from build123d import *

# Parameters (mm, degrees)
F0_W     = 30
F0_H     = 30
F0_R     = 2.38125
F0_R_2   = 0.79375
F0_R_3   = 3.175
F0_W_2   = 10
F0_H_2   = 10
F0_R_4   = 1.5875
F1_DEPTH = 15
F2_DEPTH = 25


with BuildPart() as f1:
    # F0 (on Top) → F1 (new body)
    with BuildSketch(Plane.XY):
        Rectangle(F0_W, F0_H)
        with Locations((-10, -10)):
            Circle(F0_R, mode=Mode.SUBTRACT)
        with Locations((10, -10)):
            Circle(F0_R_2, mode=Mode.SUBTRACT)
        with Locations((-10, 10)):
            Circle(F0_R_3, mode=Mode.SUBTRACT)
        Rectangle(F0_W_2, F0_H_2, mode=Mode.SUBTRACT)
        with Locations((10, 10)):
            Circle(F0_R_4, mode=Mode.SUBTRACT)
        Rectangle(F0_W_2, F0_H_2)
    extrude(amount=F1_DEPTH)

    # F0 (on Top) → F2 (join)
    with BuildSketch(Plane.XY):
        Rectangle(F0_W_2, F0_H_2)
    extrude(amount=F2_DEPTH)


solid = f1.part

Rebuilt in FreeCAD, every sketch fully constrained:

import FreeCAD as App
import Part
import Sketcher
from FreeCAD import Vector


def add_polygon(sketch, points):
    """Adds a closed chain of lines whose ends are joined by coincident constraints."""
    first, n = sketch.GeometryCount, len(points)
    for a, b in zip(points, points[1:] + points[:1]):
        sketch.addGeometry(Part.LineSegment(App.Vector(*a, 0), App.Vector(*b, 0)), False)
    for i in range(n):
        sketch.addConstraint(Sketcher.Constraint("Coincident", first + i, 2, first + (i + 1) % n, 1))

doc = App.newDocument("Part")
body = doc.addObject("PartDesign::Body", "Body")

# Sketch on XY plane
sketch1 = body.newObject("Sketcher::SketchObject", "Sketch")
sketch1.AttachmentSupport = (doc.getObject("XY_Plane"), [""])
sketch1.MapMode = "FlatFace"
add_polygon(sketch1, [(-15, 15), (-15, -15), (15, -15), (15, 15)])  # lines 0-3
sketch1.addGeometry(Part.Circle(Vector(-10, -10, 0), Vector(0, 0, 1), 2.38125), False)  # 4
sketch1.addGeometry(Part.Circle(Vector(10, -10, 0), Vector(0, 0, 1), 0.79375), False)  # 5
sketch1.addGeometry(Part.Circle(Vector(-10, 10, 0), Vector(0, 0, 1), 3.175), False)  # 6
sketch1.addGeometry(Part.Circle(Vector(10, 10, 0), Vector(0, 0, 1), 1.5875), False)  # 7
sketch1.addConstraint([
    Sketcher.Constraint("Vertical", 0),
    Sketcher.Constraint("Horizontal", 1),
    Sketcher.Constraint("Vertical", 2),
    Sketcher.Constraint("Horizontal", 3),
    Sketcher.Constraint("Symmetric", 5, 3, 6, 3, -1, 1),
    Sketcher.Constraint("Symmetric", 4, 3, 7, 3, -1, 1),
    Sketcher.Constraint("Symmetric", 0, 2, 2, 2, -1, 1),
    Sketcher.Constraint("Symmetric", 4, 3, 5, 3, -2),
    Sketcher.Constraint("Equal", 3, 0),
    Sketcher.Constraint("Diameter", 6, 6.35),
    Sketcher.Constraint("DistanceX", 1, 1, 1, 2, 30.0),
    Sketcher.Constraint("Diameter", 7, 3.175),
    Sketcher.Constraint("DistanceX", 4, 3, -1, 1, 10.0),
    Sketcher.Constraint("DistanceY", 4, 3, -1, 1, 10.0),
    Sketcher.Constraint("Diameter", 4, 4.7625),
    Sketcher.Constraint("Diameter", 5, 1.5875),
])
pad1 = body.newObject("PartDesign::Pad", "Pad")
pad1.Profile = sketch1
pad1.Length = 15

# Sketch on XY plane
sketch2 = body.newObject("Sketcher::SketchObject", "Sketch001")
sketch2.AttachmentSupport = (doc.getObject("XY_Plane"), [""])
sketch2.MapMode = "FlatFace"
add_polygon(sketch2, [(-5, 5), (-5, -5), (5, -5), (5, 5)])  # lines 0-3
sketch2.addConstraint([
    Sketcher.Constraint("Vertical", 0),
    Sketcher.Constraint("Horizontal", 1),
    Sketcher.Constraint("Vertical", 2),
    Sketcher.Constraint("Horizontal", 3),
    Sketcher.Constraint("Symmetric", 0, 2, 2, 2, -1, 1),
    Sketcher.Constraint("Equal", 3, 0),
    Sketcher.Constraint("DistanceX", 1, 1, 1, 2, 10.0),
])
pad2 = body.newObject("PartDesign::Pad", "Pad001")
pad2.Profile = sketch2
pad2.Length = 25

doc.recompute()
